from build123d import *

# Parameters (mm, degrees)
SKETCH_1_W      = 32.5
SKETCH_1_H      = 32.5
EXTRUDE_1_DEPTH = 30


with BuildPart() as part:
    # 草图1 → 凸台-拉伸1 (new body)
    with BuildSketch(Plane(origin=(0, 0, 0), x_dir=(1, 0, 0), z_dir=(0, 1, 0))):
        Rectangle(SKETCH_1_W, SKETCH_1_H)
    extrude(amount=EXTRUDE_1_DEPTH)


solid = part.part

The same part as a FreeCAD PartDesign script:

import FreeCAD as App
import Part
import Sketcher
from FreeCAD import Vector
Q = App.Units.Quantity


def add_polygon(sketch, points):
    """Adds a closed chain of lines whose ends are joined by coincident constraints."""
    first, n = sketch.GeometryCount, len(points)
    for a, b in zip(points, points[1:] + points[:1]):
        sketch.addGeometry(Part.LineSegment(App.Vector(*a, 0), App.Vector(*b, 0)), False)
    for i in range(n):
        sketch.addConstraint(Sketcher.Constraint("Coincident", first + i, 2, first + (i + 1) % n, 1))

doc = App.newDocument("Part")
body = doc.addObject("PartDesign::Body", "Body")

# Sketch on XZ plane
sketch1 = body.newObject("Sketcher::SketchObject", "Sketch")
sketch1.AttachmentSupport = (doc.getObject("XZ_Plane"), [""])
sketch1.MapMode = "FlatFace"
add_polygon(sketch1, [(-16, -16), (-16, 16), (16, 16), (16, -16)])  # lines 0-3
sketch1.addConstraint([
    Sketcher.Constraint("Vertical", 0),
    Sketcher.Constraint("Horizontal", 1),
    Sketcher.Constraint("Vertical", 2),
    Sketcher.Constraint("Horizontal", 3),
    Sketcher.Constraint("Symmetric", 0, 2, 2, 2, -1, 1),
    Sketcher.Constraint("Equal", 3, 0),
    Sketcher.Constraint("DistanceX", 1, 1, 1, 2, Q("32.5 mm")),
])
pad1 = body.newObject("PartDesign::Pad", "Pad")
pad1.Profile = sketch1
pad1.Length = 30
pad1.Reversed = True

doc.recompute()
